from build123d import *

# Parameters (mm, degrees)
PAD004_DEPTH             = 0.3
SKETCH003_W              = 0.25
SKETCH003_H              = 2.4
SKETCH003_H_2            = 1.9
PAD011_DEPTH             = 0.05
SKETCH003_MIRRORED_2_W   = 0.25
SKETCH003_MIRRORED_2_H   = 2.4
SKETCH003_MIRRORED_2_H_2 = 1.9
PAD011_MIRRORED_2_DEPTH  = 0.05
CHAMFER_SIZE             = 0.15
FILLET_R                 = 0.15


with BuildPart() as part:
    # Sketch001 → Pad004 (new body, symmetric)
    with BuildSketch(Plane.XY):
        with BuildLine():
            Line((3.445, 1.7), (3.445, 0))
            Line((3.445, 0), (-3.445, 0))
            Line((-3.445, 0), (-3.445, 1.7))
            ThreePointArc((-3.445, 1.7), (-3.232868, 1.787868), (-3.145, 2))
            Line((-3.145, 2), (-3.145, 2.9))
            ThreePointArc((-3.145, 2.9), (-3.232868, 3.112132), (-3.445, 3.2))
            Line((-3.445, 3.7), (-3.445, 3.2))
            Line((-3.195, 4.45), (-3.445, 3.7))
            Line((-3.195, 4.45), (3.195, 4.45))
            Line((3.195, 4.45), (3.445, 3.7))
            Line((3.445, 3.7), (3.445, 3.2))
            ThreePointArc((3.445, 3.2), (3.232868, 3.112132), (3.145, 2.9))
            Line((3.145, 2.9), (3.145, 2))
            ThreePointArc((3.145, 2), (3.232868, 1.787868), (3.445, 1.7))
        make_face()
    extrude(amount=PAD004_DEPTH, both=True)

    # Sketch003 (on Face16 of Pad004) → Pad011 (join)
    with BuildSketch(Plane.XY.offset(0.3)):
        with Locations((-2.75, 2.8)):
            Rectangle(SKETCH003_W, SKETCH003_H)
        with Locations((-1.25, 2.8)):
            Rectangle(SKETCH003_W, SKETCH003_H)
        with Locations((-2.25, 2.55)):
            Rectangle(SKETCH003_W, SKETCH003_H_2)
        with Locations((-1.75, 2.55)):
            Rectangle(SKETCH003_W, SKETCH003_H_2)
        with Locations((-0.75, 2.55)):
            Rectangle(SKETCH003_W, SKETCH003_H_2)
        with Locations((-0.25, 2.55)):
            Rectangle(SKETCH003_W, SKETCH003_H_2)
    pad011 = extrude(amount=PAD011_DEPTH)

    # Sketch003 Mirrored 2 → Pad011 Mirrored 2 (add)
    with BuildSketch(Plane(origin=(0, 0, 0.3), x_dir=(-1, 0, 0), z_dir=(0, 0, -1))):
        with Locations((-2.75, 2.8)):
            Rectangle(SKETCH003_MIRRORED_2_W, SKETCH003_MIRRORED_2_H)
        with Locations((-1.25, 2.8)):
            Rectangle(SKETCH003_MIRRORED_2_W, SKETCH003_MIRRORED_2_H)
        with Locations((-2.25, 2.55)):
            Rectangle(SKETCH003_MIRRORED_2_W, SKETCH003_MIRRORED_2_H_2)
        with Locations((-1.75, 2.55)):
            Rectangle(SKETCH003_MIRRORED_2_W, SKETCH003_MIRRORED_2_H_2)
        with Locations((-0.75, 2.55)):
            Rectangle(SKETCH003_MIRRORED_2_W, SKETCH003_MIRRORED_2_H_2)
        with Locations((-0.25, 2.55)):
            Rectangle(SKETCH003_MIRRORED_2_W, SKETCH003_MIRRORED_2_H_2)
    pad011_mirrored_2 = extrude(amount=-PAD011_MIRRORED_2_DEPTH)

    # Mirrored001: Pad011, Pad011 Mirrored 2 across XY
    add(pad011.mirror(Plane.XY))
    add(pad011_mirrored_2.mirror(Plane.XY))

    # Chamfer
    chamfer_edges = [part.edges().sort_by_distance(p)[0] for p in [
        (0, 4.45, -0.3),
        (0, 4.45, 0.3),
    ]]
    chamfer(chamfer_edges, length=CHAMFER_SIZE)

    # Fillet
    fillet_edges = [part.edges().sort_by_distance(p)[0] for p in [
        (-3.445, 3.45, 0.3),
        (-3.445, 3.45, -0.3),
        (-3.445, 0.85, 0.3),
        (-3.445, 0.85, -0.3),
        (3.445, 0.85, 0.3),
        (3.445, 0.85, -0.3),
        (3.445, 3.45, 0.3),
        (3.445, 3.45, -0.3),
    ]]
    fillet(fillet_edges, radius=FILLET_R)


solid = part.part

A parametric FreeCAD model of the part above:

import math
import FreeCAD as App
import Part
import Sketcher

V = App.Vector
Q = App.Units.Quantity


def edges_at(feature, points):
    """Names of the edges that pass closest to the given points."""
    edges = feature.Shape.Edges
    near = lambda p: min(range(len(edges)), key=lambda i: edges[i].distToShape(Part.Vertex(*p))[0])
    return sorted({f"Edge{near(p) + 1}" for p in points})


def add_polygon(sketch, points):
    """Adds a closed chain of lines whose ends are joined by coincident constraints."""
    first, n = sketch.GeometryCount, len(points)
    for a, b in zip(points, points[1:] + points[:1]):
        sketch.addGeometry(Part.LineSegment(App.Vector(*a, 0), App.Vector(*b, 0)), False)
    for i in range(n):
        sketch.addConstraint(Sketcher.Constraint("Coincident", first + i, 2, first + (i + 1) % n, 1))

doc = App.newDocument("Part")
body = doc.addObject("PartDesign::Body", "Body")

sketch1 = body.newObject("Sketcher::SketchObject", "Sketch")
sketch1.AttachmentSupport = (doc.getObject("XY_Plane"), [""])
sketch1.MapMode = "FlatFace"
sketch1.addGeometry(Part.LineSegment(V(3.445, 0, 0), V(3.445, 1.7, 0)), False)
sketch1.addGeometry(Part.ArcOfCircle(Part.Circle(V(3.445, 2, 0), V(0, 0, 1), 0.3), math.radians(-179.999978), math.radians(-90.000022)), False)
sketch1.addGeometry(Part.LineSegment(V(3.145, 2, 0), V(3.145, 2.9, 0)), False)
sketch1.addGeometry(Part.ArcOfCircle(Part.Circle(V(3.445, 2.9, 0), V(0, 0, 1), 0.3), math.radians(90.000022), math.radians(179.999978)), False)
sketch1.addGeometry(Part.LineSegment(V(3.445, 3.2, 0), V(3.445, 3.7, 0)), False)
sketch1.addGeometry(Part.LineSegment(V(3.445, 3.7, 0), V(3.195, 4.45, 0)), False)
sketch1.addGeometry(Part.LineSegment(V(3.195, 4.45, 0), V(-3.195, 4.45, 0)), False)
sketch1.addGeometry(Part.LineSegment(V(-3.195, 4.45, 0), V(-3.445, 3.7, 0)), False)
sketch1.addGeometry(Part.LineSegment(V(-3.445, 3.7, 0), V(-3.445, 3.2, 0)), False)
sketch1.addGeometry(Part.ArcOfCircle(Part.Circle(V(-3.445, 2.9, 0), V(0, 0, 1), 0.3), math.radians(0.000022), math.radians(89.999978)), False)
sketch1.addGeometry(Part.LineSegment(V(-3.145, 2.9, 0), V(-3.145, 2, 0)), False)
sketch1.addGeometry(Part.ArcOfCircle(Part.Circle(V(-3.445, 2, 0), V(0, 0, 1), 0.3), math.radians(-89.999978), math.radians(-0.000022)), False)
sketch1.addGeometry(Part.LineSegment(V(-3.445, 1.7, 0), V(-3.445, 0, 0)), False)
sketch1.addGeometry(Part.LineSegment(V(-3.445, 0, 0), V(3.445, 0, 0)), False)
sketch1.addConstraint(Sketcher.Constraint("Coincident", 0, 2, 1, 2))
sketch1.addConstraint(Sketcher.Constraint("Tangent", 1, 1, 2, 1))
sketch1.addConstraint(Sketcher.Constraint("Tangent", 2, 2, 3, 2))
sketch1.addConstraint(Sketcher.Constraint("Coincident", 3, 1, 4, 1))
sketch1.addConstraint(Sketcher.Constraint("Coincident", 4, 2, 5, 1))
sketch1.addConstraint(Sketcher.Constraint("Coincident", 5, 2, 6, 1))
sketch1.addConstraint(Sketcher.Constraint("Coincident", 6, 2, 7, 1))
sketch1.addConstraint(Sketcher.Constraint("Coincident", 7, 2, 8, 1))
sketch1.addConstraint(Sketcher.Constraint("Coincident", 8, 2, 9, 2))
sketch1.addConstraint(Sketcher.Constraint("Tangent", 9, 1, 10, 1))
sketch1.addConstraint(Sketcher.Constraint("Tangent", 10, 2, 11, 2))
sketch1.addConstraint(Sketcher.Constraint("Coincident", 11, 1, 12, 1))
sketch1.addConstraint(Sketcher.Constraint("Coincident", 12, 2, 13, 1))
sketch1.addConstraint(Sketcher.Constraint("Coincident", 13, 2, 0, 1))
sketch1.addConstraint(Sketcher.Constraint("Vertical", 0))
sketch1.addConstraint(Sketcher.Constraint("Vertical", 2))
sketch1.addConstraint(Sketcher.Constraint("Vertical", 4))
sketch1.addConstraint(Sketcher.Constraint("Horizontal", 6))
sketch1.addConstraint(Sketcher.Constraint("Vertical", 8))
sketch1.addConstraint(Sketcher.Constraint("Vertical", 10))
sketch1.addConstraint(Sketcher.Constraint("Vertical", 12))
sketch1.addConstraint(Sketcher.Constraint("Horizontal", 13))
sketch1.addConstraint(Sketcher.Constraint("Equal", 1, 3))
sketch1.addConstraint(Sketcher.Constraint("Equal", 3, 9))
sketch1.addConstraint(Sketcher.Constraint("Equal", 9, 11))
sketch1.addConstraint(Sketcher.Constraint("Symmetric", 12, 2, 13, 2, -1, 1))
sketch1.addConstraint(Sketcher.Constraint("Symmetric", 3, 3, 9, 3, -2))
sketch1.addConstraint(Sketcher.Constraint("Symmetric", 4, 2, 7, 2, -2))
sketch1.addConstraint(Sketcher.Constraint("Horizontal", 1, 3, 11, 3))
sketch1.addConstraint(Sketcher.Constraint("Vertical", 3, 3, 0, 2))
sketch1.addConstraint(Sketcher.Constraint("Vertical", 0, 2, 3, 1))
sketch1.addConstraint(Sketcher.Constraint("Equal", 5, 7))
sketch1.addConstraint(Sketcher.Constraint("Radius", 1, Q("0.3 mm")))
sketch1.addConstraint(Sketcher.Constraint("DistanceY", 0, 1, 0, 2, Q("1.7 mm")))
sketch1.addConstraint(Sketcher.Constraint("DistanceY", 2, 1, 2, 2, Q("0.9 mm")))
sketch1.addConstraint(Sketcher.Constraint("DistanceY", 4, 1, 4, 2, Q("0.5 mm")))
sketch1.addConstraint(Sketcher.Constraint("DistanceX", 6, 2, 6, 1, Q("6.39 mm")))
sketch1.addConstraint(Sketcher.Constraint("DistanceX", 13, 1, 13, 2, Q("6.89 mm")))
sketch1.addConstraint(Sketcher.Constraint("DistanceY", -1, 1, 5, 2, Q("4.45 mm")))
pad1 = body.newObject("PartDesign::Pad", "Pad")
pad1.Profile = sketch1
pad1.Length = 0.6
pad1.Midplane = True

sketch2 = body.newObject("Sketcher::SketchObject", "Sketch001")
sketch2.AttachmentSupport = (doc.getObject("XY_Plane"), [""])
sketch2.MapMode = "FlatFace"
sketch2.AttachmentOffset = App.Placement(V(0, 0, 0.3), App.Rotation())
add_polygon(sketch2, [(-2.875, 4), (-2.875, 1.6), (-2.625, 1.6), (-2.625, 4)])
add_polygon(sketch2, [(-1.375, 4), (-1.375, 1.6), (-1.125, 1.6), (-1.125, 4)])
add_polygon(sketch2, [(-2.375, 3.5), (-2.375, 1.6), (-2.125, 1.6), (-2.125, 3.5)])
add_polygon(sketch2, [(-1.875, 3.5), (-1.875, 1.6), (-1.625, 1.6), (-1.625, 3.5)])
add_polygon(sketch2, [(-0.875, 3.5), (-0.875, 1.6), (-0.625, 1.6), (-0.625, 3.5)])
add_polygon(sketch2, [(-0.375, 3.5), (-0.375, 1.6), (-0.125, 1.6), (-0.125, 3.5)])
sketch2.addConstraint(Sketcher.Constraint("Vertical", 0))
sketch2.addConstraint(Sketcher.Constraint("Horizontal", 1))
sketch2.addConstraint(Sketcher.Constraint("Vertical", 2))
sketch2.addConstraint(Sketcher.Constraint("Horizontal", 3))
sketch2.addConstraint(Sketcher.Constraint("Vertical", 4))
sketch2.addConstraint(Sketcher.Constraint("Horizontal", 5))
sketch2.addConstraint(Sketcher.Constraint("Vertical", 6))
sketch2.addConstraint(Sketcher.Constraint("Horizontal", 7))
sketch2.addConstraint(Sketcher.Constraint("Vertical", 8))
sketch2.addConstraint(Sketcher.Constraint("Horizontal", 9))
sketch2.addConstraint(Sketcher.Constraint("Vertical", 10))
sketch2.addConstraint(Sketcher.Constraint("Horizontal", 11))
sketch2.addConstraint(Sketcher.Constraint("Vertical", 12))
sketch2.addConstraint(Sketcher.Constraint("Horizontal", 13))
sketch2.addConstraint(Sketcher.Constraint("Vertical", 14))
sketch2.addConstraint(Sketcher.Constraint("Horizontal", 15))
sketch2.addConstraint(Sketcher.Constraint("Vertical", 16))
sketch2.addConstraint(Sketcher.Constraint("Horizontal", 17))
sketch2.addConstraint(Sketcher.Constraint("Vertical", 18))
sketch2.addConstraint(Sketcher.Constraint("Horizontal", 19))
sketch2.addConstraint(Sketcher.Constraint("Vertical", 20))
sketch2.addConstraint(Sketcher.Constraint("Horizontal", 21))
sketch2.addConstraint(Sketcher.Constraint("Vertical", 22))
sketch2.addConstraint(Sketcher.Constraint("Horizontal", 23))
sketch2.addConstraint(Sketcher.Constraint("Horizontal", 1, 2, 4, 2))
sketch2.addConstraint(Sketcher.Constraint("Horizontal", 3, 2, 6, 2))
sketch2.addConstraint(Sketcher.Constraint("Horizontal", 5, 2, 8, 2))
sketch2.addConstraint(Sketcher.Constraint("Horizontal", 9, 2, 12, 2))
sketch2.addConstraint(Sketcher.Constraint("Horizontal", 11, 2, 14, 2))
sketch2.addConstraint(Sketcher.Constraint("Horizontal", 13, 2, 16, 2))
sketch2.addConstraint(Sketcher.Constraint("Horizontal", 15, 2, 18, 2))
sketch2.addConstraint(Sketcher.Constraint("Horizontal", 17, 2, 20, 2))
sketch2.addConstraint(Sketcher.Constraint("Horizontal", 19, 2, 22, 2))
sketch2.addConstraint(Sketcher.Constraint("Equal", 3, 5))
sketch2.addConstraint(Sketcher.Constraint("Equal", 7, 9))
sketch2.addConstraint(Sketcher.Constraint("Equal", 11, 13))
sketch2.addConstraint(Sketcher.Constraint("Equal", 15, 17))
sketch2.addConstraint(Sketcher.Constraint("Equal", 19, 21))
sketch2.addConstraint(Sketcher.Constraint("DistanceY", 0, 2, 0, 1, Q("2.4 mm")))
sketch2.addConstraint(Sketcher.Constraint("DistanceY", 8, 2, 8, 1, Q("1.9 mm")))
sketch2.addConstraint(Sketcher.Constraint("DistanceY", -1, 1, 2, 2, Q("4 mm")))
sketch2.addConstraint(Sketcher.Constraint("DistanceX", 8, 2, 4, 2, Q("1 mm")))
sketch2.addConstraint(Sketcher.Constraint("DistanceX", 2, 2, 14, 2, Q("1 mm")))
sketch2.addConstraint(Sketcher.Constraint("DistanceX", 12, 2, 16, 2, Q("1 mm")))
sketch2.addConstraint(Sketcher.Constraint("DistanceX", 4, 2, 20, 2, Q("1 mm")))
sketch2.addConstraint(Sketcher.Constraint("DistanceX", 1, 1, 1, 2, Q("0.25 mm")))
sketch2.addConstraint(Sketcher.Constraint("DistanceX", 0, 2, 4, 2, Q("1.5 mm")))
sketch2.addConstraint(Sketcher.Constraint("DistanceX", 0, 2, -1, 1, Q("2.875 mm")))
pad2 = body.newObject("PartDesign::Pad", "Pad001")
pad2.Profile = sketch2
pad2.Length = 0.05

sketch3 = body.newObject("Sketcher::SketchObject", "Sketch002")
sketch3.AttachmentSupport = (doc.getObject("XY_Plane"), [""])
sketch3.MapMode = "FlatFace"
sketch3.AttachmentOffset = App.Placement(V(0, 0, 0.3), App.Rotation())
add_polygon(sketch3, [(2.875, 4), (2.875, 1.6), (2.625, 1.6), (2.625, 4)])
add_polygon(sketch3, [(1.375, 4), (1.375, 1.6), (1.125, 1.6), (1.125, 4)])
add_polygon(sketch3, [(2.375, 3.5), (2.375, 1.6), (2.125, 1.6), (2.125, 3.5)])
add_polygon(sketch3, [(1.875, 3.5), (1.875, 1.6), (1.625, 1.6), (1.625, 3.5)])
add_polygon(sketch3, [(0.875, 3.5), (0.875, 1.6), (0.625, 1.6), (0.625, 3.5)])
add_polygon(sketch3, [(0.375, 3.5), (0.375, 1.6), (0.125, 1.6), (0.125, 3.5)])
sketch3.addConstraint(Sketcher.Constraint("Vertical", 0))
sketch3.addConstraint(Sketcher.Constraint("Horizontal", 1))
sketch3.addConstraint(Sketcher.Constraint("Vertical", 2))
sketch3.addConstraint(Sketcher.Constraint("Horizontal", 3))
sketch3.addConstraint(Sketcher.Constraint("Vertical", 4))
sketch3.addConstraint(Sketcher.Constraint("Horizontal", 5))
sketch3.addConstraint(Sketcher.Constraint("Vertical", 6))
sketch3.addConstraint(Sketcher.Constraint("Horizontal", 7))
sketch3.addConstraint(Sketcher.Constraint("Vertical", 8))
sketch3.addConstraint(Sketcher.Constraint("Horizontal", 9))
sketch3.addConstraint(Sketcher.Constraint("Vertical", 10))
sketch3.addConstraint(Sketcher.Constraint("Horizontal", 11))
sketch3.addConstraint(Sketcher.Constraint("Vertical", 12))
sketch3.addConstraint(Sketcher.Constraint("Horizontal", 13))
sketch3.addConstraint(Sketcher.Constraint("Vertical", 14))
sketch3.addConstraint(Sketcher.Constraint("Horizontal", 15))
sketch3.addConstraint(Sketcher.Constraint("Vertical", 16))
sketch3.addConstraint(Sketcher.Constraint("Horizontal", 17))
sketch3.addConstraint(Sketcher.Constraint("Vertical", 18))
sketch3.addConstraint(Sketcher.Constraint("Horizontal", 19))
sketch3.addConstraint(Sketcher.Constraint("Vertical", 20))
sketch3.addConstraint(Sketcher.Constraint("Horizontal", 21))
sketch3.addConstraint(Sketcher.Constraint("Vertical", 22))
sketch3.addConstraint(Sketcher.Constraint("Horizontal", 23))
sketch3.addConstraint(Sketcher.Constraint("Horizontal", 1, 2, 4, 2))
sketch3.addConstraint(Sketcher.Constraint("Horizontal", 3, 2, 6, 2))
sketch3.addConstraint(Sketcher.Constraint("Horizontal", 5, 2, 8, 2))
sketch3.addConstraint(Sketcher.Constraint("Horizontal", 9, 2, 12, 2))
sketch3.addConstraint(Sketcher.Constraint("Horizontal", 11, 2, 14, 2))
sketch3.addConstraint(Sketcher.Constraint("Horizontal", 13, 2, 16, 2))
sketch3.addConstraint(Sketcher.Constraint("Horizontal", 15, 2, 18, 2))
sketch3.addConstraint(Sketcher.Constraint("Horizontal", 17, 2, 20, 2))
sketch3.addConstraint(Sketcher.Constraint("Horizontal", 19, 2, 22, 2))
sketch3.addConstraint(Sketcher.Constraint("Equal", 3, 5))
sketch3.addConstraint(Sketcher.Constraint("Equal", 7, 9))
sketch3.addConstraint(Sketcher.Constraint("Equal", 11, 13))
sketch3.addConstraint(Sketcher.Constraint("Equal", 15, 17))
sketch3.addConstraint(Sketcher.Constraint("Equal", 19, 21))
sketch3.addConstraint(Sketcher.Constraint("DistanceY", 0, 2, 0, 1, Q("2.4 mm")))
sketch3.addConstraint(Sketcher.Constraint("DistanceY", 8, 2, 8, 1, Q("1.9 mm")))
sketch3.addConstraint(Sketcher.Constraint("DistanceY", -1, 1, 2, 2, Q("4 mm")))
sketch3.addConstraint(Sketcher.Constraint("DistanceX", 4, 2, 8, 2, Q("1 mm")))
sketch3.addConstraint(Sketcher.Constraint("DistanceX", 14, 2, 2, 2, Q("1 mm")))
sketch3.addConstraint(Sketcher.Constraint("DistanceX", 16, 2, 12, 2, Q("1 mm")))
sketch3.addConstraint(Sketcher.Constraint("DistanceX", 20, 2, 4, 2, Q("1 mm")))
sketch3.addConstraint(Sketcher.Constraint("DistanceX", 1, 2, 1, 1, Q("0.25 mm")))
sketch3.addConstraint(Sketcher.Constraint("DistanceX", 4, 2, 0, 2, Q("1.5 mm")))
sketch3.addConstraint(Sketcher.Constraint("DistanceX", -1, 1, 0, 2, Q("2.875 mm")))
pad3 = body.newObject("PartDesign::Pad", "Pad002")
pad3.Profile = sketch3
pad3.Length = 0.05
doc.recompute()

mirrored = body.newObject("PartDesign::Mirrored", "Mirrored")
mirrored.Originals = [pad2, pad3]
mirrored.MirrorPlane = (doc.getObject("XY_Plane"), [""])
body.Tip = mirrored
doc.recompute()

chamfer = body.newObject("PartDesign::Chamfer", "Chamfer")
chamfer.Base = (mirrored, edges_at(mirrored, [(0, 4.45, -0.3), (0, 4.45, 0.3)]))
chamfer.Size = 0.15
doc.recompute()

fillet = body.newObject("PartDesign::Fillet", "Fillet")
fillet.Base = (chamfer, edges_at(chamfer, [
    (-3.445, 3.45, 0.3),
    (-3.445, 3.45, -0.3),
    (-3.445, 0.85, 0.3),
    (-3.445, 0.85, -0.3),
    (3.445, 0.85, 0.3),
    (3.445, 0.85, -0.3),
    (3.445, 3.45, 0.3),
    (3.445, 3.45, -0.3),
]))
fillet.Radius = 0.15

doc.recompute()
